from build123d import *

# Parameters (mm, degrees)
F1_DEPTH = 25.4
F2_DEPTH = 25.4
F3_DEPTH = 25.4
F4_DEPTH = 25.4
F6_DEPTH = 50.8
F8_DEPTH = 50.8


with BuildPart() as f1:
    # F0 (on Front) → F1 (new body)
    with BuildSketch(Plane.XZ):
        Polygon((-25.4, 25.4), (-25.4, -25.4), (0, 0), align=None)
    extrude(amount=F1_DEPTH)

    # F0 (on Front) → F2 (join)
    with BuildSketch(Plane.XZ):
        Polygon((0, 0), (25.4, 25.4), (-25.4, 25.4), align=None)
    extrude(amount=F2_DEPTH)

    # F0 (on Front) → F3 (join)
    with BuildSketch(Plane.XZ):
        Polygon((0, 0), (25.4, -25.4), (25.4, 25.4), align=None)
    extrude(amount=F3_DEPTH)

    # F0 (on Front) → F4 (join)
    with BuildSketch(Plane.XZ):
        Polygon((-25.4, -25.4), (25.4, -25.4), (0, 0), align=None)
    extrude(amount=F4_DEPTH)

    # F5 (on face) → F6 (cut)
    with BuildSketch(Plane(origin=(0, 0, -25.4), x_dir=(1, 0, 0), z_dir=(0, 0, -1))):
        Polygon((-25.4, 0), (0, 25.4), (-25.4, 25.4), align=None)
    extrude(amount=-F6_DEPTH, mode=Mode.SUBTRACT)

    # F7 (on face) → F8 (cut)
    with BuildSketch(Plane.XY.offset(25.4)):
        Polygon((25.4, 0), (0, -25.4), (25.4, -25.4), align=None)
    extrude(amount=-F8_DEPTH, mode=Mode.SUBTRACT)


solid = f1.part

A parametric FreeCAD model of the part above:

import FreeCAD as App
import Part
import Sketcher

V = App.Vector
Q = App.Units.Quantity

doc = App.newDocument("Part")
body = doc.addObject("PartDesign::Body", "Body")

sketch1 = body.newObject("Sketcher::SketchObject", "Sketch")
sketch1.AttachmentSupport = (doc.getObject("XZ_Plane"), [""])
sketch1.MapMode = "FlatFace"
sketch1.addGeometry([
    Part.LineSegment(V(-25, 25, 0), V(-25, -25, 0)),
    Part.LineSegment(V(-25, -25, 0), V(0, 0, 0)),
    Part.LineSegment(V(0, 0, 0), V(-25, 25, 0)),
], False)
sketch1.addConstraint([
    Sketcher.Constraint("Coincident", 0, 2, 1, 1),
    Sketcher.Constraint("Coincident", 1, 2, 2, 1),
    Sketcher.Constraint("Coincident", 2, 2, 0, 1),
    Sketcher.Constraint("Vertical", 0),
    Sketcher.Constraint("Coincident", 1, 2, -1, 1),
    Sketcher.Constraint("Perpendicular", 1, 2),
    Sketcher.Constraint("Equal", 1, 2),
    Sketcher.Constraint("DistanceY", 0, 2, 0, 1, Q("2 in")),
])
pad1 = body.newObject("PartDesign::Pad", "Pad")
pad1.Profile = sketch1
pad1.Length = Q("1 in")

sketch2 = body.newObject("Sketcher::SketchObject", "Sketch001")
sketch2.AttachmentSupport = (doc.getObject("XZ_Plane"), [""])
sketch2.MapMode = "FlatFace"
sketch2.addGeometry([
    Part.LineSegment(V(0, 0, 0), V(25, 25, 0)),
    Part.LineSegment(V(25, 25, 0), V(-25, 25, 0)),
    Part.LineSegment(V(-25, 25, 0), V(0, 0, 0)),
], False)
sketch2.addConstraint([
    Sketcher.Constraint("Coincident", 0, 2, 1, 1),
    Sketcher.Constraint("Coincident", 1, 2, 2, 1),
    Sketcher.Constraint("Coincident", 2, 2, 0, 1),
    Sketcher.Constraint("Horizontal", 1),
    Sketcher.Constraint("Coincident", 2, 2, -1, 1),
    Sketcher.Constraint("Perpendicular", 0, 2),
    Sketcher.Constraint("Equal", 0, 2),
    Sketcher.Constraint("DistanceX", 1, 2, 1, 1, Q("2 in")),
])
pad2 = body.newObject("PartDesign::Pad", "Pad001")
pad2.Profile = sketch2
pad2.Length = Q("1 in")

sketch3 = body.newObject("Sketcher::SketchObject", "Sketch002")
sketch3.AttachmentSupport = (doc.getObject("XZ_Plane"), [""])
sketch3.MapMode = "FlatFace"
sketch3.addGeometry([
    Part.LineSegment(V(0, 0, 0), V(25, -25, 0)),
    Part.LineSegment(V(25, -25, 0), V(25, 25, 0)),
    Part.LineSegment(V(25, 25, 0), V(0, 0, 0)),
], False)
sketch3.addConstraint([
    Sketcher.Constraint("Coincident", 0, 2, 1, 1),
    Sketcher.Constraint("Coincident", 1, 2, 2, 1),
    Sketcher.Constraint("Coincident", 2, 2, 0, 1),
    Sketcher.Constraint("Vertical", 1),
    Sketcher.Constraint("Coincident", 2, 2, -1, 1),
    Sketcher.Constraint("Perpendicular", 0, 2),
    Sketcher.Constraint("Equal", 0, 2),
    Sketcher.Constraint("DistanceY", 1, 1, 1, 2, Q("2 in")),
])
pad3 = body.newObject("PartDesign::Pad", "Pad002")
pad3.Profile = sketch3
pad3.Length = Q("1 in")

sketch4 = body.newObject("Sketcher::SketchObject", "Sketch003")
sketch4.AttachmentSupport = (doc.getObject("XZ_Plane"), [""])
sketch4.MapMode = "FlatFace"
sketch4.addGeometry([
    Part.LineSegment(V(-25, -25, 0), V(25, -25, 0)),
    Part.LineSegment(V(25, -25, 0), V(0, 0, 0)),
    Part.LineSegment(V(0, 0, 0), V(-25, -25, 0)),
], False)
sketch4.addConstraint([
    Sketcher.Constraint("Coincident", 0, 2, 1, 1),
    Sketcher.Constraint("Coincident", 1, 2, 2, 1),
    Sketcher.Constraint("Coincident", 2, 2, 0, 1),
    Sketcher.Constraint("Horizontal", 0),
    Sketcher.Constraint("Coincident", 1, 2, -1, 1),
    Sketcher.Constraint("Perpendicular", 1, 2),
    Sketcher.Constraint("Equal", 1, 2),
    Sketcher.Constraint("DistanceX", 0, 1, 0, 2, Q("2 in")),
])
pad4 = body.newObject("PartDesign::Pad", "Pad003")
pad4.Profile = sketch4
pad4.Length = Q("1 in")

sketch5 = body.newObject("Sketcher::SketchObject", "Sketch004")
sketch5.AttachmentSupport = (doc.getObject("XY_Plane"), [""])
sketch5.MapMode = "FlatFace"
sketch5.AttachmentOffset = App.Placement(V(0, 0, -1 * 25.4), App.Rotation())
sketch5.addGeometry([
    Part.LineSegment(V(-25, 0, 0), V(0, -25, 0)),
    Part.LineSegment(V(0, -25, 0), V(-25, -25, 0)),
    Part.LineSegment(V(-25, -25, 0), V(-25, 0, 0)),
], False)
sketch5.addConstraint([
    Sketcher.Constraint("Coincident", 0, 2, 1, 1),
    Sketcher.Constraint("Coincident", 1, 2, 2, 1),
    Sketcher.Constraint("Coincident", 2, 2, 0, 1),
    Sketcher.Constraint("Horizontal", 1),
    Sketcher.Constraint("Vertical", 2),
    Sketcher.Constraint("PointOnObject", 0, 2, -2),
    Sketcher.Constraint("PointOnObject", 2, 2, -1),
    Sketcher.Constraint("Equal", 1, 2),
    Sketcher.Constraint("DistanceX", 1, 2, 1, 1, Q("1 in")),
])
pocket1 = body.newObject("PartDesign::Pocket", "Pocket")
pocket1.Profile = sketch5
pocket1.Length = Q("2 in")
pocket1.Reversed = True

sketch6 = body.newObject("Sketcher::SketchObject", "Sketch005")
sketch6.AttachmentSupport = (doc.getObject("XY_Plane"), [""])
sketch6.MapMode = "FlatFace"
sketch6.AttachmentOffset = App.Placement(V(0, 0, 1 * 25.4), App.Rotation())
sketch6.addGeometry([
    Part.LineSegment(V(25, 0, 0), V(0, -25, 0)),
    Part.LineSegment(V(0, -25, 0), V(25, -25, 0)),
    Part.LineSegment(V(25, -25, 0), V(25, 0, 0)),
], False)
sketch6.addConstraint([
    Sketcher.Constraint("Coincident", 0, 2, 1, 1),
    Sketcher.Constraint("Coincident", 1, 2, 2, 1),
    Sketcher.Constraint("Coincident", 2, 2, 0, 1),
    Sketcher.Constraint("Horizontal", 1),
    Sketcher.Constraint("Vertical", 2),
    Sketcher.Constraint("PointOnObject", 0, 2, -2),
    Sketcher.Constraint("PointOnObject", 2, 2, -1),
    Sketcher.Constraint("Equal", 1, 2),
    Sketcher.Constraint("DistanceX", 1, 1, 1, 2, Q("1 in")),
])
pocket2 = body.newObject("PartDesign::Pocket", "Pocket001")
pocket2.Profile = sketch6
pocket2.Length = Q("2 in")

doc.recompute()
